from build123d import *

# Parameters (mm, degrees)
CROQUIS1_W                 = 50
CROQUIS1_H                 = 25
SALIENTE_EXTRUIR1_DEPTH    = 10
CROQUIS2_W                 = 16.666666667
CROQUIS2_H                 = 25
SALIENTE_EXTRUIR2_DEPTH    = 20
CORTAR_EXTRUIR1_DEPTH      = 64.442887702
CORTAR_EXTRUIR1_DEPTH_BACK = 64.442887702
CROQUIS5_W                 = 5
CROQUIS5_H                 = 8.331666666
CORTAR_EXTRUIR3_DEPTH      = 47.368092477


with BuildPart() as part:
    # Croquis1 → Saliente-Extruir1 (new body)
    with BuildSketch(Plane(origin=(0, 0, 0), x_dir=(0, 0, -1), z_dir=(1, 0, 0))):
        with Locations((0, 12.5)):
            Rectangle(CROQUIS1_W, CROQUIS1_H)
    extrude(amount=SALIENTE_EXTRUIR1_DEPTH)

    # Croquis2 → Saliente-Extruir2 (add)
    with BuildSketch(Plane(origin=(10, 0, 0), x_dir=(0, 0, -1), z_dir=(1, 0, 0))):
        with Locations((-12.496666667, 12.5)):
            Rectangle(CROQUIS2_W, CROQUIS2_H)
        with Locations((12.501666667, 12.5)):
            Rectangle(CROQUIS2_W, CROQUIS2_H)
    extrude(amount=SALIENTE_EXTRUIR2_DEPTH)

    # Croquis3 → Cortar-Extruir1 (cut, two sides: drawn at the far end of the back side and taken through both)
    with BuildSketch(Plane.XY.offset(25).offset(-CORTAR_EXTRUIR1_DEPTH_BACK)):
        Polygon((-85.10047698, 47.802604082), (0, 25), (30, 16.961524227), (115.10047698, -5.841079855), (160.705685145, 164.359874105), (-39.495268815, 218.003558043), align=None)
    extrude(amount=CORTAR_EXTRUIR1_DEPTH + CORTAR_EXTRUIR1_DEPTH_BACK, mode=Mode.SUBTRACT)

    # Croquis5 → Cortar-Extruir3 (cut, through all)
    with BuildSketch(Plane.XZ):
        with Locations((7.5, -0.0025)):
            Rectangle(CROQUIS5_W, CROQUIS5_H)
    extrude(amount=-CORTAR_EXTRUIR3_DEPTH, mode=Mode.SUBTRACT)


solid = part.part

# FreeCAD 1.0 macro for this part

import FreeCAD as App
import Part
import Sketcher

V = App.Vector
Q = App.Units.Quantity


def add_polygon(sketch, points):
    """Adds a closed chain of lines whose ends are joined by coincident constraints."""
    first, n = sketch.GeometryCount, len(points)
    for a, b in zip(points, points[1:] + points[:1]):
        sketch.addGeometry(Part.LineSegment(App.Vector(*a, 0), App.Vector(*b, 0)), False)
    for i in range(n):
        sketch.addConstraint(Sketcher.Constraint("Coincident", first + i, 2, first + (i + 1) % n, 1))

doc = App.newDocument("Part")
body = doc.addObject("PartDesign::Body", "Body")

sketch1 = body.newObject("Sketcher::SketchObject", "Sketch")
sketch1.AttachmentSupport = (doc.getObject("YZ_Plane"), [""])
sketch1.MapMode = "FlatFace"
add_polygon(sketch1, [(25, 25), (0, 25), (0, -25), (25, -25)])
sketch1.addConstraint([
    Sketcher.Constraint("Horizontal", 0),
    Sketcher.Constraint("Vertical", 1),
    Sketcher.Constraint("Horizontal", 2),
    Sketcher.Constraint("Vertical", 3),
    Sketcher.Constraint("Symmetric", 0, 2, 1, 2, -1, 1),
    Sketcher.Constraint("DistanceX", 0, 2, 0, 1, Q("25 mm")),
    Sketcher.Constraint("DistanceY", 1, 2, 1, 1, Q("50 mm")),
])
pad1 = body.newObject("PartDesign::Pad", "Pad")
pad1.Profile = sketch1
pad1.Length = 10

sketch2 = body.newObject("Sketcher::SketchObject", "Sketch001")
sketch2.AttachmentSupport = (doc.getObject("YZ_Plane"), [""])
sketch2.MapMode = "FlatFace"
sketch2.AttachmentOffset = App.Placement(V(0, 0, 10), App.Rotation())
add_polygon(sketch2, [(25, 21), (0, 21), (0, 4), (25, 4)])
add_polygon(sketch2, [(25, -4), (0, -4), (0, -21), (25, -21)])
sketch2.addConstraint([
    Sketcher.Constraint("Horizontal", 0),
    Sketcher.Constraint("Vertical", 1),
    Sketcher.Constraint("Horizontal", 2),
    Sketcher.Constraint("Vertical", 3),
    Sketcher.Constraint("Horizontal", 4),
    Sketcher.Constraint("Vertical", 5),
    Sketcher.Constraint("Horizontal", 6),
    Sketcher.Constraint("Vertical", 7),
    Sketcher.Constraint("PointOnObject", 0, 2, -2),
    Sketcher.Constraint("PointOnObject", 4, 2, -2),
    Sketcher.Constraint("Vertical", 3, 2, 6, 2),
    Sketcher.Constraint("Equal", 3, 5),
    Sketcher.Constraint("DistanceX", 0, 2, 0, 1, Q("25 mm")),
    Sketcher.Constraint("DistanceY", -1, 1, 0, 2, Q("20.83 mm")),
    Sketcher.Constraint("DistanceY", 5, 2, -1, 1, Q("20.835 mm")),
    Sketcher.Constraint("DistanceY", 1, 2, 1, 1, Q("16.666667 mm")),
])
pad2 = body.newObject("PartDesign::Pad", "Pad001")
pad2.Profile = sketch2
pad2.Length = 20

sketch3 = body.newObject("Sketcher::SketchObject", "Sketch002")
sketch3.AttachmentSupport = (doc.getObject("XY_Plane"), [""])
sketch3.MapMode = "FlatFace"
sketch3.AttachmentOffset = App.Placement(V(0, 0, 25), App.Rotation())
add_polygon(sketch3, [(-85, 48), (0, 25), (30, 17), (115, -6), (161, 164), (-39, 218)])
sketch3.addConstraint([
    Sketcher.Constraint("PointOnObject", 0, 2, -2),
    Sketcher.Constraint("Parallel", 0, 1),
    Sketcher.Constraint("Parallel", 1, 2),
    Sketcher.Constraint("Perpendicular", 2, 3),
    Sketcher.Constraint("Perpendicular", 3, 4),
    Sketcher.Constraint("Perpendicular", 4, 5),
    Sketcher.Constraint("Equal", 0, 2),
    Sketcher.Constraint("Angle", 0, Q("-15 deg")),
    Sketcher.Constraint("DistanceY", -1, 1, 0, 2, Q("25 mm")),
    Sketcher.Constraint("DistanceX", -1, 1, 1, 2, Q("30 mm")),
    Sketcher.Constraint("Distance", 4, Q("207.263279 mm")),
    Sketcher.Constraint("DistanceX", 4, 2, -1, 1, Q("39.495269 mm")),
])
pocket1 = body.newObject("PartDesign::Pocket", "Pocket")
pocket1.Profile = sketch3
pocket1.Type = "ThroughAll"
pocket1.Midplane = True

sketch4 = body.newObject("Sketcher::SketchObject", "Sketch003")
sketch4.AttachmentSupport = (doc.getObject("XZ_Plane"), [""])
sketch4.MapMode = "FlatFace"
add_polygon(sketch4, [(5, 4), (5, -4), (10, -4), (10, 4)])
sketch4.addConstraint([
    Sketcher.Constraint("Vertical", 0),
    Sketcher.Constraint("Horizontal", 1),
    Sketcher.Constraint("Vertical", 2),
    Sketcher.Constraint("Horizontal", 3),
    Sketcher.Constraint("DistanceX", 1, 1, 1, 2, Q("5 mm")),
    Sketcher.Constraint("DistanceX", -1, 1, 0, 2, Q("5 mm")),
    Sketcher.Constraint("DistanceY", 0, 2, 0, 1, Q("8.331667 mm")),
    Sketcher.Constraint("DistanceY", 0, 2, -1, 1, Q("4.168333 mm")),
])
pocket2 = body.newObject("PartDesign::Pocket", "Pocket001")
pocket2.Profile = sketch4
pocket2.Type = "ThroughAll"

doc.recompute()
